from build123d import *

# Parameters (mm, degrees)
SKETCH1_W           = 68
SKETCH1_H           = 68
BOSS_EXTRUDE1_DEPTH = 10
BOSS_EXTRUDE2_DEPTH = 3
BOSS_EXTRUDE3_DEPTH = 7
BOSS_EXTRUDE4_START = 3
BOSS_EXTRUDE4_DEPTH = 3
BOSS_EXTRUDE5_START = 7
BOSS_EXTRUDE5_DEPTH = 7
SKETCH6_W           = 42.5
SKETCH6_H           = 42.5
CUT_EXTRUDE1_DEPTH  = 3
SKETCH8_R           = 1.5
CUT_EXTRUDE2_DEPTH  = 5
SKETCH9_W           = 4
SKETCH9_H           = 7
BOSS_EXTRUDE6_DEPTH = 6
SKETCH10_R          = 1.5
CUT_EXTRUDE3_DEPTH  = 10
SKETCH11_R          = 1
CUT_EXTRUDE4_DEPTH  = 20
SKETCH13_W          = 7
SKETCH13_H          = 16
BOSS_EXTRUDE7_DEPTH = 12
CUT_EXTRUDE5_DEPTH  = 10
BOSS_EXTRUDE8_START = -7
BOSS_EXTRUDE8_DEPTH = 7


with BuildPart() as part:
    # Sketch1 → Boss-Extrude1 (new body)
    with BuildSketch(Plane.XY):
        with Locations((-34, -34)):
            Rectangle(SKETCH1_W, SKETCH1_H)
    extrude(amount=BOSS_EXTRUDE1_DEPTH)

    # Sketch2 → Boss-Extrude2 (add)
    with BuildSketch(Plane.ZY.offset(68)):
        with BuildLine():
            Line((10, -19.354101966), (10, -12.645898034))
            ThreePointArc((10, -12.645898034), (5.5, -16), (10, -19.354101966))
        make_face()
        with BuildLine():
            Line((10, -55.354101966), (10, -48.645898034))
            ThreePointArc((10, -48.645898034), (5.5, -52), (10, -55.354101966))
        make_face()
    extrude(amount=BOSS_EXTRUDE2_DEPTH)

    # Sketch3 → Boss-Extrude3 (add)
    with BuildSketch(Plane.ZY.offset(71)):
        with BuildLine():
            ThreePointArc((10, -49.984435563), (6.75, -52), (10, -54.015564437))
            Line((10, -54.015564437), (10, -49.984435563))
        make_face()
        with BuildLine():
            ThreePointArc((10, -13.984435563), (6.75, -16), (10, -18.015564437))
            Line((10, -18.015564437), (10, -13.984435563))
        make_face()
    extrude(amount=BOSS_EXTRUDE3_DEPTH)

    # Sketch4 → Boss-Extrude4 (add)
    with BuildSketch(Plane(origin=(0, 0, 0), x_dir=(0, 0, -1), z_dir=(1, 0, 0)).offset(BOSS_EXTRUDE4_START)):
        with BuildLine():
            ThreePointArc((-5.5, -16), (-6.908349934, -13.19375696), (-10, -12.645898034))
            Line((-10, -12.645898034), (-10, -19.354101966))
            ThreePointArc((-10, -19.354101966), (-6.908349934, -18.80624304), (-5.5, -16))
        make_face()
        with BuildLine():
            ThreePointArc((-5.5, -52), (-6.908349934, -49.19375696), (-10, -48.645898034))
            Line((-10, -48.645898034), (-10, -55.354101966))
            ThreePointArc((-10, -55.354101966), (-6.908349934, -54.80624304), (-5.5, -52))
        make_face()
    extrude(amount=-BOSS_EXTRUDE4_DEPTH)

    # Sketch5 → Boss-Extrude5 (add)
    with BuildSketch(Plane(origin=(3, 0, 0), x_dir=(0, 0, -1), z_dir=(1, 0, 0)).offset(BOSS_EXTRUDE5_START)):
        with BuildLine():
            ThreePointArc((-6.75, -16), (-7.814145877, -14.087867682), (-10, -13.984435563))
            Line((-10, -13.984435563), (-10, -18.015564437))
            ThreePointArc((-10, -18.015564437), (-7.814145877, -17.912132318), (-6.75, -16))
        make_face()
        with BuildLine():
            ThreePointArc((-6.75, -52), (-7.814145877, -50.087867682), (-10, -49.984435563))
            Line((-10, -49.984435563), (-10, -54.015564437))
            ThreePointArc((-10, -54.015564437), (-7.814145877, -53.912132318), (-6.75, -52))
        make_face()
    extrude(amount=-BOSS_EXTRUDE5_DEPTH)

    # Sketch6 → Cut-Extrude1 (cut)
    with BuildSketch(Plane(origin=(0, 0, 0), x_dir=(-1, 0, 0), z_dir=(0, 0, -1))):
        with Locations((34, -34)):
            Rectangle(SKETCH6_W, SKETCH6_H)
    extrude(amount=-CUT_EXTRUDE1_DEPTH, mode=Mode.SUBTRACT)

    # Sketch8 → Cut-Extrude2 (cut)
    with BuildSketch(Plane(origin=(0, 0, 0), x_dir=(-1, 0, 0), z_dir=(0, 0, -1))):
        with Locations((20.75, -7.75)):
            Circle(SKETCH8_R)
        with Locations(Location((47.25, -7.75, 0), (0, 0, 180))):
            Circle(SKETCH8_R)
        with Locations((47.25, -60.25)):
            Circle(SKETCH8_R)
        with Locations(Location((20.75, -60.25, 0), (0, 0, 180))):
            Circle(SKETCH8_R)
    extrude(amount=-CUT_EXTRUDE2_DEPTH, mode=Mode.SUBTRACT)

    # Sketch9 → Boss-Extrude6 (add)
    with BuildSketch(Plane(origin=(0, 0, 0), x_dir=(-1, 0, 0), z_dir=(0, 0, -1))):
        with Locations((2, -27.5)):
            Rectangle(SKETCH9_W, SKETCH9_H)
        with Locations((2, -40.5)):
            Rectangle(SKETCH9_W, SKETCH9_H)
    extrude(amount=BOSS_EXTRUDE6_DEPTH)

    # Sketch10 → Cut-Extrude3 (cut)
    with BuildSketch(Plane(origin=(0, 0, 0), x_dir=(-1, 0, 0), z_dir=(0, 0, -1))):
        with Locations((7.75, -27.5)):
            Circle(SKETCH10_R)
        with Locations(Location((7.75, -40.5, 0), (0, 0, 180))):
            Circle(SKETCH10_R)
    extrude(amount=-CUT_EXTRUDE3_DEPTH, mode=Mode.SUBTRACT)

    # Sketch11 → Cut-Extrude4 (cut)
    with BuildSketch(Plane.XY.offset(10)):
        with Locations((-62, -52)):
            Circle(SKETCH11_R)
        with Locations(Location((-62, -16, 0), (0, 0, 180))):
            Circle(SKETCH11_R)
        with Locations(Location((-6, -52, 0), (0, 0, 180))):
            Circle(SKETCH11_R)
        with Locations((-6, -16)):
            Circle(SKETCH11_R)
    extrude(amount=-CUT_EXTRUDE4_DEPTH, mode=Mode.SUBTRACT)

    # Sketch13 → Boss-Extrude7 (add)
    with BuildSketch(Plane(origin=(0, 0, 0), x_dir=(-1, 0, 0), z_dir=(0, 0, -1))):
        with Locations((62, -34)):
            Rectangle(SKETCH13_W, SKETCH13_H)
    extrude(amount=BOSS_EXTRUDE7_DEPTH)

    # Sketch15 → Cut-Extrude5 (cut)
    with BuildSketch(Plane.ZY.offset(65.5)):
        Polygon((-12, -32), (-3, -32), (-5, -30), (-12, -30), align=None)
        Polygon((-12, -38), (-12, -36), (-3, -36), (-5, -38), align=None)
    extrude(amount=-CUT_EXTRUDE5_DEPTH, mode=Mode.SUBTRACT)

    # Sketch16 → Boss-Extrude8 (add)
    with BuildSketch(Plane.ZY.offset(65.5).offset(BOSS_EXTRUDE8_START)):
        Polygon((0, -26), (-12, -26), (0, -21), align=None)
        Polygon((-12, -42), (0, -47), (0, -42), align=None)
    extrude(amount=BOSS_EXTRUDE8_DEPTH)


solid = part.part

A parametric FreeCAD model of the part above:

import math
import FreeCAD as App
import Part
import Sketcher
from FreeCAD import Vector
Q = App.Units.Quantity

doc = App.newDocument("Part")
body = doc.addObject("PartDesign::Body", "Body")

# Sketch on XY plane
sketch1 = body.newObject("Sketcher::SketchObject", "Sketch")
sketch1.AttachmentSupport = (doc.getObject("XY_Plane"), [""])
sketch1.MapMode = "FlatFace"
sketch1.addGeometry([
    Part.LineSegment(Vector(-68, 0, 0), Vector(-68, -68, 0)),
    Part.LineSegment(Vector(-68, -68, 0), Vector(0, -68, 0)),
    Part.LineSegment(Vector(0, -68, 0), Vector(0, 0, 0)),
    Part.LineSegment(Vector(0, 0, 0), Vector(-68, 0, 0)),
], False)
sketch1.addConstraint([
    Sketcher.Constraint("Coincident", 0, 2, 1, 1),
    Sketcher.Constraint("Coincident", 1, 2, 2, 1),
    Sketcher.Constraint("Coincident", 2, 2, 3, 1),
    Sketcher.Constraint("Coincident", 3, 2, 0, 1),
    Sketcher.Constraint("Vertical", 0),
    Sketcher.Constraint("Horizontal", 1),
    Sketcher.Constraint("Vertical", 2),
    Sketcher.Constraint("Horizontal", 3),
    Sketcher.Constraint("Coincident", 2, 2, -1, 1),
    Sketcher.Constraint("Equal", 3, 0),
    Sketcher.Constraint("DistanceX", 1, 1, 1, 2, Q("68 mm")),
])
pad1 = body.newObject("PartDesign::Pad", "Pad")
pad1.Profile = sketch1
pad1.Length = 10

# Sketch on YZ plane
sketch2 = body.newObject("Sketcher::SketchObject", "Sketch001")
sketch2.AttachmentSupport = (doc.getObject("YZ_Plane"), [""])
sketch2.MapMode = "FlatFace"
sketch2.AttachmentOffset = App.Placement(Vector(0, 0, -68), App.Rotation())
sketch2.addGeometry([
    Part.LineSegment(Vector(-19.4, 10, 0), Vector(-12.6, 10, 0)),
    Part.ArcOfCircle(Part.Circle(Vector(-16, 9, 0), Vector(0, 0, 1), 3.5), math.radians(163), math.radians(377)),
    Part.LineSegment(Vector(-55.4, 10, 0), Vector(-48.6, 10, 0)),
    Part.ArcOfCircle(Part.Circle(Vector(-52, 9, 0), Vector(0, 0, 1), 3.5), math.radians(163), math.radians(377)),
], False)
sketch2.addConstraint([
    Sketcher.Constraint("Coincident", 0, 1, 1, 1),
    Sketcher.Constraint("Coincident", 1, 2, 0, 2),
    Sketcher.Constraint("Coincident", 2, 1, 3, 1),
    Sketcher.Constraint("Coincident", 3, 2, 2, 2),
    Sketcher.Constraint("Horizontal", 0),
    Sketcher.Constraint("Horizontal", 2),
    Sketcher.Constraint("Equal", 1, 3),
    Sketcher.Constraint("Horizontal", 1, 3, 3, 3),
    Sketcher.Constraint("Horizontal", 1, 2, 2, 1),
    Sketcher.Constraint("Radius", 1, Q("3.5 mm")),
    Sketcher.Constraint("DistanceX", 1, 3, -1, 1, Q("16 mm")),
    Sketcher.Constraint("DistanceY", -1, 1, 1, 3, Q("9 mm")),
    Sketcher.Constraint("DistanceX", 3, 3, -1, 1, Q("52 mm")),
    Sketcher.Constraint("DistanceY", -1, 1, 0, 1, Q("10 mm")),
])
pad2 = body.newObject("PartDesign::Pad", "Pad001")
pad2.Profile = sketch2
pad2.Length = 3
pad2.Reversed = True

# Sketch on YZ plane
sketch3 = body.newObject("Sketcher::SketchObject", "Sketch002")
sketch3.AttachmentSupport = (doc.getObject("YZ_Plane"), [""])
sketch3.MapMode = "FlatFace"
sketch3.AttachmentOffset = App.Placement(Vector(0, 0, -71), App.Rotation())
sketch3.addGeometry([
    Part.ArcOfCircle(Part.Circle(Vector(-52, 9, 0), Vector(0, 0, 1), 2.2), math.radians(154), math.radians(386)),
    Part.LineSegment(Vector(-54, 10, 0), Vector(-50, 10, 0)),
    Part.ArcOfCircle(Part.Circle(Vector(-16, 9, 0), Vector(0, 0, 1), 2.2), math.radians(154), math.radians(386)),
    Part.LineSegment(Vector(-18, 10, 0), Vector(-14, 10, 0)),
], False)
sketch3.addConstraint([
    Sketcher.Constraint("Coincident", 0, 1, 1, 1),
    Sketcher.Constraint("Coincident", 1, 2, 0, 2),
    Sketcher.Constraint("Coincident", 2, 1, 3, 1),
    Sketcher.Constraint("Coincident", 3, 2, 2, 2),
    Sketcher.Constraint("Horizontal", 1),
    Sketcher.Constraint("Horizontal", 3),
    Sketcher.Constraint("Equal", 0, 2),
    Sketcher.Constraint("Horizontal", 0, 3, 2, 3),
    Sketcher.Constraint("Horizontal", 1, 2, 2, 1),
    Sketcher.Constraint("Radius", 0, Q("2.25 mm")),
    Sketcher.Constraint("DistanceX", 0, 3, -1, 1, Q("52 mm")),
    Sketcher.Constraint("DistanceY", -1, 1, 0, 3, Q("9 mm")),
    Sketcher.Constraint("DistanceX", 2, 3, -1, 1, Q("16 mm")),
    Sketcher.Constraint("DistanceY", -1, 1, 0, 1, Q("10 mm")),
])
pad3 = body.newObject("PartDesign::Pad", "Pad002")
pad3.Profile = sketch3
pad3.Length = 7
pad3.Reversed = True

# Sketch on YZ plane
sketch4 = body.newObject("Sketcher::SketchObject", "Sketch003")
sketch4.AttachmentSupport = (doc.getObject("YZ_Plane"), [""])
sketch4.MapMode = "FlatFace"
sketch4.AttachmentOffset = App.Placement(Vector(0, 0, 3), App.Rotation())
sketch4.addGeometry([
    Part.ArcOfCircle(Part.Circle(Vector(-16, 9, 0), Vector(0, 0, 1), 3.5), math.radians(-90), math.radians(17)),  # 0
    Part.LineSegment(Vector(-12.6, 10, 0), Vector(-19.4, 10, 0)),  # 1
    Part.ArcOfCircle(Part.Circle(Vector(-16, 9, 0), Vector(0, 0, 1), 3.5), math.radians(163), math.radians(270)),  # 2
    Part.ArcOfCircle(Part.Circle(Vector(-52, 9, 0), Vector(0, 0, 1), 3.5), math.radians(-90), math.radians(17)),  # 3
    Part.LineSegment(Vector(-48.6, 10, 0), Vector(-55.4, 10, 0)),  # 4
    Part.ArcOfCircle(Part.Circle(Vector(-52, 9, 0), Vector(0, 0, 1), 3.5), math.radians(163), math.radians(270)),  # 5
], False)
sketch4.addConstraint([
    Sketcher.Constraint("Coincident", 0, 2, 1, 1),
    Sketcher.Constraint("Coincident", 1, 2, 2, 1),
    Sketcher.Constraint("Tangent", 2, 2, 0, 1),
    Sketcher.Constraint("Coincident", 3, 2, 4, 1),
    Sketcher.Constraint("Coincident", 4, 2, 5, 1),
    Sketcher.Constraint("Tangent", 5, 2, 3, 1),
    Sketcher.Constraint("Horizontal", 1),
    Sketcher.Constraint("Horizontal", 4),
    Sketcher.Constraint("Equal", 0, 2),
    Sketcher.Constraint("Equal", 2, 3),
    Sketcher.Constraint("Equal", 3, 5),
    Sketcher.Constraint("Horizontal", 2, 3, 3, 3),
    Sketcher.Constraint("Horizontal", 1, 2, 3, 2),
    Sketcher.Constraint("Vertical", 0, 3, 2, 2),
    Sketcher.Constraint("Vertical", 3, 3, 5, 2),
    Sketcher.Constraint("Radius", 0, Q("3.5 mm")),
    Sketcher.Constraint("DistanceX", 0, 3, -1, 1, Q("16 mm")),
    Sketcher.Constraint("DistanceY", -1, 1, 0, 3, Q("9 mm")),
    Sketcher.Constraint("DistanceX", 3, 3, -1, 1, Q("52 mm")),
    Sketcher.Constraint("DistanceY", -1, 1, 0, 2, Q("10 mm")),
])
pad4 = body.newObject("PartDesign::Pad", "Pad003")
pad4.Profile = sketch4
pad4.Length = 3
pad4.Reversed = True

# Sketch on YZ plane
sketch5 = body.newObject("Sketcher::SketchObject", "Sketch004")
sketch5.AttachmentSupport = (doc.getObject("YZ_Plane"), [""])
sketch5.MapMode = "FlatFace"
sketch5.AttachmentOffset = App.Placement(Vector(0, 0, 10), App.Rotation())
sketch5.addGeometry([
    Part.ArcOfCircle(Part.Circle(Vector(-16, 9, 0), Vector(0, 0, 1), 2.2), math.radians(-90), math.radians(26)),  # 0
    Part.LineSegment(Vector(-14, 10, 0), Vector(-18, 10, 0)),  # 1
    Part.ArcOfCircle(Part.Circle(Vector(-16, 9, 0), Vector(0, 0, 1), 2.2), math.radians(154), math.radians(270)),  # 2
    Part.ArcOfCircle(Part.Circle(Vector(-52, 9, 0), Vector(0, 0, 1), 2.2), math.radians(-90), math.radians(26)),  # 3
    Part.LineSegment(Vector(-50, 10, 0), Vector(-54, 10, 0)),  # 4
    Part.ArcOfCircle(Part.Circle(Vector(-52, 9, 0), Vector(0, 0, 1), 2.2), math.radians(154), math.radians(270)),  # 5
], False)
sketch5.addConstraint([
    Sketcher.Constraint("Coincident", 0, 2, 1, 1),
    Sketcher.Constraint("Coincident", 1, 2, 2, 1),
    Sketcher.Constraint("Tangent", 2, 2, 0, 1),
    Sketcher.Constraint("Coincident", 3, 2, 4, 1),
    Sketcher.Constraint("Coincident", 4, 2, 5, 1),
    Sketcher.Constraint("Tangent", 5, 2, 3, 1),
    Sketcher.Constraint("Horizontal", 1),
    Sketcher.Constraint("Horizontal", 4),
    Sketcher.Constraint("Equal", 0, 2),
    Sketcher.Constraint("Equal", 2, 3),
    Sketcher.Constraint("Equal", 3, 5),
    Sketcher.Constraint("Horizontal", 2, 3, 3, 3),
    Sketcher.Constraint("Horizontal", 1, 2, 3, 2),
    Sketcher.Constraint("Vertical", 0, 3, 2, 2),
    Sketcher.Constraint("Vertical", 3, 3, 5, 2),
    Sketcher.Constraint("Radius", 0, Q("2.25 mm")),
    Sketcher.Constraint("DistanceX", 0, 3, -1, 1, Q("16 mm")),
    Sketcher.Constraint("DistanceY", -1, 1, 0, 3, Q("9 mm")),
    Sketcher.Constraint("DistanceX", 3, 3, -1, 1, Q("52 mm")),
    Sketcher.Constraint("DistanceY", -1, 1, 0, 2, Q("10 mm")),
])
pad5 = body.newObject("PartDesign::Pad", "Pad004")
pad5.Profile = sketch5
pad5.Length = 7
pad5.Reversed = True

# Sketch on XY plane
sketch6 = body.newObject("Sketcher::SketchObject", "Sketch005")
sketch6.AttachmentSupport = (doc.getObject("XY_Plane"), [""])
sketch6.MapMode = "FlatFace"
sketch6.addGeometry([
    Part.LineSegment(Vector(-13, -13, 0), Vector(-13, -55, 0)),
    Part.LineSegment(Vector(-13, -55, 0), Vector(-55, -55, 0)),
    Part.LineSegment(Vector(-55, -55, 0), Vector(-55, -13, 0)),
    Part.LineSegment(Vector(-55, -13, 0), Vector(-13, -13, 0)),
], False)
sketch6.addConstraint([
    Sketcher.Constraint("Coincident", 0, 2, 1, 1),
    Sketcher.Constraint("Coincident", 1, 2, 2, 1),
    Sketcher.Constraint("Coincident", 2, 2, 3, 1),
    Sketcher.Constraint("Coincident", 3, 2, 0, 1),
    Sketcher.Constraint("Vertical", 0),
    Sketcher.Constraint("Horizontal", 1),
    Sketcher.Constraint("Vertical", 2),
    Sketcher.Constraint("Horizontal", 3),
    Sketcher.Constraint("Equal", 3, 0),
    Sketcher.Constraint("DistanceX", 1, 2, 1, 1, Q("42.5 mm")),
    Sketcher.Constraint("DistanceX", 0, 2, -1, 1, Q("12.75 mm")),
    Sketcher.Constraint("DistanceY", 0, 2, -1, 1, Q("55.25 mm")),
])
pocket1 = body.newObject("PartDesign::Pocket", "Pocket")
pocket1.Profile = sketch6
pocket1.Length = 3
pocket1.Reversed = True

# Sketch on XY plane
sketch7 = body.newObject("Sketcher::SketchObject", "Sketch006")
sketch7.AttachmentSupport = (doc.getObject("XY_Plane"), [""])
sketch7.MapMode = "FlatFace"
sketch7.addGeometry([
    Part.Circle(Vector(-20.8, -7.8, 0), Vector(0, 0, 1), 1.5),
    Part.Circle(Vector(-47.2, -7.8, 0), Vector(0, 0, 1), 1.5),
    Part.Circle(Vector(-47.2, -60.2, 0), Vector(0, 0, 1), 1.5),
    Part.Circle(Vector(-20.8, -60.2, 0), Vector(0, 0, 1), 1.5),
], False)
sketch7.addConstraint([
    Sketcher.Constraint("Equal", 0, 1),
    Sketcher.Constraint("Equal", 1, 2),
    Sketcher.Constraint("Equal", 2, 3),
    Sketcher.Constraint("Horizontal", 0, 3, 1, 3),
    Sketcher.Constraint("Horizontal", 2, 3, 3, 3),
    Sketcher.Constraint("Vertical", 1, 3, 2, 3),
    Sketcher.Constraint("Vertical", 0, 3, 3, 3),
    Sketcher.Constraint("Diameter", 0, Q("3 mm")),
    Sketcher.Constraint("DistanceX", 1, 3, 0, 3, Q("26.5 mm")),
    Sketcher.Constraint("DistanceY", 2, 3, 1, 3, Q("52.5 mm")),
    Sketcher.Constraint("DistanceX", 0, 3, -1, 1, Q("20.75 mm")),
    Sketcher.Constraint("DistanceY", 0, 3, -1, 1, Q("7.75 mm")),
])
pocket2 = body.newObject("PartDesign::Pocket", "Pocket001")
pocket2.Profile = sketch7
pocket2.Length = 5
pocket2.Reversed = True

# Sketch on XY plane
sketch8 = body.newObject("Sketcher::SketchObject", "Sketch007")
sketch8.AttachmentSupport = (doc.getObject("XY_Plane"), [""])
sketch8.MapMode = "FlatFace"
sketch8.addGeometry([
    Part.LineSegment(Vector(0, -24, 0), Vector(0, -31, 0)),  # 0
    Part.LineSegment(Vector(0, -31, 0), Vector(-4, -31, 0)),  # 1
    Part.LineSegment(Vector(-4, -31, 0), Vector(-4, -24, 0)),  # 2
    Part.LineSegment(Vector(-4, -24, 0), Vector(0, -24, 0)),  # 3
    Part.LineSegment(Vector(0, -37, 0), Vector(0, -44, 0)),  # 4
    Part.LineSegment(Vector(0, -44, 0), Vector(-4, -44, 0)),  # 5
    Part.LineSegment(Vector(-4, -44, 0), Vector(-4, -37, 0)),  # 6
    Part.LineSegment(Vector(-4, -37, 0), Vector(0, -37, 0)),  # 7
], False)
sketch8.addConstraint([
    Sketcher.Constraint("Coincident", 0, 2, 1, 1),
    Sketcher.Constraint("Coincident", 1, 2, 2, 1),
    Sketcher.Constraint("Coincident", 2, 2, 3, 1),
    Sketcher.Constraint("Coincident", 3, 2, 0, 1),
    Sketcher.Constraint("Coincident", 4, 2, 5, 1),
    Sketcher.Constraint("Coincident", 5, 2, 6, 1),
    Sketcher.Constraint("Coincident", 6, 2, 7, 1),
    Sketcher.Constraint("Coincident", 7, 2, 4, 1),
    Sketcher.Constraint("Vertical", 0),
    Sketcher.Constraint("Horizontal", 1),
    Sketcher.Constraint("Vertical", 2),
    Sketcher.Constraint("Horizontal", 3),
    Sketcher.Constraint("Vertical", 4),
    Sketcher.Constraint("Horizontal", 5),
    Sketcher.Constraint("Vertical", 6),
    Sketcher.Constraint("Horizontal", 7),
    Sketcher.Constraint("PointOnObject", 0, 2, -2),
    Sketcher.Constraint("PointOnObject", 4, 2, -2),
    Sketcher.Constraint("Vertical", 2, 2, 5, 2),
    Sketcher.Constraint("Equal", 2, 4),
    Sketcher.Constraint("DistanceX", 1, 2, 1, 1, Q("4 mm")),
    Sketcher.Constraint("DistanceY", 0, 2, 0, 1, Q("7 mm")),
    Sketcher.Constraint("DistanceY", 0, 2, -1, 1, Q("31 mm")),
    Sketcher.Constraint("DistanceY", 4, 2, -1, 1, Q("44 mm")),
])
pad6 = body.newObject("PartDesign::Pad", "Pad005")
pad6.Profile = sketch8
pad6.Length = 6
pad6.Reversed = True

# Sketch on XY plane
sketch9 = body.newObject("Sketcher::SketchObject", "Sketch008")
sketch9.AttachmentSupport = (doc.getObject("XY_Plane"), [""])
sketch9.MapMode = "FlatFace"
sketch9.addGeometry([
    Part.Circle(Vector(-7.8, -27.5, 0), Vector(0, 0, 1), 1.5),
    Part.Circle(Vector(-7.8, -40.5, 0), Vector(0, 0, 1), 1.5),
], False)
sketch9.addConstraint([
    Sketcher.Constraint("Equal", 0, 1),
    Sketcher.Constraint("Vertical", 0, 3, 1, 3),
    Sketcher.Constraint("Diameter", 0, Q("3 mm")),
    Sketcher.Constraint("DistanceY", 1, 3, 0, 3, Q("13 mm")),
    Sketcher.Constraint("DistanceY", 0, 3, -1, 1, Q("27.5 mm")),
    Sketcher.Constraint("DistanceX", 0, 3, -1, 1, Q("7.75 mm")),
])
pocket3 = body.newObject("PartDesign::Pocket", "Pocket002")
pocket3.Profile = sketch9
pocket3.Length = 10
pocket3.Reversed = True

# Sketch on XY plane
sketch10 = body.newObject("Sketcher::SketchObject", "Sketch009")
sketch10.AttachmentSupport = (doc.getObject("XY_Plane"), [""])
sketch10.MapMode = "FlatFace"
sketch10.AttachmentOffset = App.Placement(Vector(0, 0, 10), App.Rotation())
sketch10.addGeometry([
    Part.Circle(Vector(-62, -52, 0), Vector(0, 0, 1), 1),
    Part.Circle(Vector(-62, -16, 0), Vector(0, 0, 1), 1),
    Part.Circle(Vector(-6, -52, 0), Vector(0, 0, 1), 1),
    Part.Circle(Vector(-6, -16, 0), Vector(0, 0, 1), 1),
], False)
sketch10.addConstraint([
    Sketcher.Constraint("Equal", 0, 1),
    Sketcher.Constraint("Equal", 1, 2),
    Sketcher.Constraint("Equal", 2, 3),
    Sketcher.Constraint("Horizontal", 0, 3, 2, 3),
    Sketcher.Constraint("Horizontal", 1, 3, 3, 3),
    Sketcher.Constraint("Vertical", 0, 3, 1, 3),
    Sketcher.Constraint("Vertical", 2, 3, 3, 3),
    Sketcher.Constraint("Diameter", 0, Q("2 mm")),
    Sketcher.Constraint("DistanceX", 0, 3, -1, 1, Q("62 mm")),
    Sketcher.Constraint("DistanceY", 0, 3, -1, 1, Q("52 mm")),
    Sketcher.Constraint("DistanceY", 1, 3, -1, 1, Q("16 mm")),
    Sketcher.Constraint("DistanceX", 2, 3, -1, 1, Q("6 mm")),
])
pocket4 = body.newObject("PartDesign::Pocket", "Pocket003")
pocket4.Profile = sketch10
pocket4.Length = 20

# Sketch on XY plane
sketch11 = body.newObject("Sketcher::SketchObject", "Sketch010")
sketch11.AttachmentSupport = (doc.getObject("XY_Plane"), [""])
sketch11.MapMode = "FlatFace"
sketch11.addGeometry([
    Part.LineSegment(Vector(-58, -26, 0), Vector(-58, -42, 0)),
    Part.LineSegment(Vector(-58, -42, 0), Vector(-66, -42, 0)),
    Part.LineSegment(Vector(-66, -42, 0), Vector(-66, -26, 0)),
    Part.LineSegment(Vector(-66, -26, 0), Vector(-58, -26, 0)),
], False)
sketch11.addConstraint([
    Sketcher.Constraint("Coincident", 0, 2, 1, 1),
    Sketcher.Constraint("Coincident", 1, 2, 2, 1),
    Sketcher.Constraint("Coincident", 2, 2, 3, 1),
    Sketcher.Constraint("Coincident", 3, 2, 0, 1),
    Sketcher.Constraint("Vertical", 0),
    Sketcher.Constraint("Horizontal", 1),
    Sketcher.Constraint("Vertical", 2),
    Sketcher.Constraint("Horizontal", 3),
    Sketcher.Constraint("DistanceX", 1, 2, 1, 1, Q("7 mm")),
    Sketcher.Constraint("DistanceY", 0, 2, 0, 1, Q("16 mm")),
    Sketcher.Constraint("DistanceY", 0, 2, -1, 1, Q("42 mm")),
    Sketcher.Constraint("DistanceX", 0, 2, -1, 1, Q("58.5 mm")),
])
pad7 = body.newObject("PartDesign::Pad", "Pad006")
pad7.Profile = sketch11
pad7.Length = 12
pad7.Reversed = True

# Sketch on YZ plane
sketch12 = body.newObject("Sketcher::SketchObject", "Sketch011")
sketch12.AttachmentSupport = (doc.getObject("YZ_Plane"), [""])
sketch12.MapMode = "FlatFace"
sketch12.AttachmentOffset = App.Placement(Vector(0, 0, -65.5), App.Rotation())
sketch12.addGeometry([
    Part.LineSegment(Vector(-32, -12, 0), Vector(-32, -3, 0)),  # 0
    Part.LineSegment(Vector(-32, -3, 0), Vector(-30, -5, 0)),  # 1
    Part.LineSegment(Vector(-30, -5, 0), Vector(-30, -12, 0)),  # 2
    Part.LineSegment(Vector(-30, -12, 0), Vector(-32, -12, 0)),  # 3
    Part.LineSegment(Vector(-36, -12, 0), Vector(-38, -12, 0)),  # 4
    Part.LineSegment(Vector(-38, -12, 0), Vector(-38, -5, 0)),  # 5
    Part.LineSegment(Vector(-38, -5, 0), Vector(-36, -3, 0)),  # 6
    Part.LineSegment(Vector(-36, -3, 0), Vector(-36, -12, 0)),  # 7
], False)
sketch12.addConstraint([
    Sketcher.Constraint("Coincident", 0, 2, 1, 1),
    Sketcher.Constraint("Coincident", 1, 2, 2, 1),
    Sketcher.Constraint("Coincident", 2, 2, 3, 1),
    Sketcher.Constraint("Coincident", 3, 2, 0, 1),
    Sketcher.Constraint("Coincident", 4, 2, 5, 1),
    Sketcher.Constraint("Coincident", 5, 2, 6, 1),
    Sketcher.Constraint("Coincident", 6, 2, 7, 1),
    Sketcher.Constraint("Coincident", 7, 2, 4, 1),
    Sketcher.Constraint("Vertical", 0),
    Sketcher.Constraint("Vertical", 2),
    Sketcher.Constraint("Horizontal", 3),
    Sketcher.Constraint("Horizontal", 4),
    Sketcher.Constraint("Vertical", 5),
    Sketcher.Constraint("Vertical", 7),
    Sketcher.Constraint("Perpendicular", 1, 6),
    Sketcher.Constraint("Horizontal", 3, 2, 4, 2),
    Sketcher.Constraint("Horizontal", 1, 2, 5, 2),
    Sketcher.Constraint("Horizontal", 0, 2, 6, 2),
    Sketcher.Constraint("Equal", 3, 4),
    Sketcher.Constraint("DistanceX", 3, 2, 3, 1, Q("2 mm")),
    Sketcher.Constraint("DistanceY", 0, 1, 0, 2, Q("9 mm")),
    Sketcher.Constraint("DistanceX", 0, 2, -1, 1, Q("32 mm")),
    Sketcher.Constraint("DistanceY", 0, 2, -1, 1, Q("3 mm")),
    Sketcher.Constraint("DistanceX", 4, 2, -1, 1, Q("38 mm")),
])
pocket5 = body.newObject("PartDesign::Pocket", "Pocket004")
pocket5.Profile = sketch12
pocket5.Length = 10
pocket5.Reversed = True

# Sketch on YZ plane
sketch13 = body.newObject("Sketcher::SketchObject", "Sketch012")
sketch13.AttachmentSupport = (doc.getObject("YZ_Plane"), [""])
sketch13.MapMode = "FlatFace"
sketch13.AttachmentOffset = App.Placement(Vector(0, 0, -58.5), App.Rotation())
sketch13.addGeometry([
    Part.LineSegment(Vector(-26, -12, 0), Vector(-26, 0, 0)),  # 0
    Part.LineSegment(Vector(-26, 0, 0), Vector(-21, 0, 0)),  # 1
    Part.LineSegment(Vector(-21, 0, 0), Vector(-26, -12, 0)),  # 2
    Part.LineSegment(Vector(-42, -12, 0), Vector(-47, 0, 0)),  # 3
    Part.LineSegment(Vector(-47, 0, 0), Vector(-42, 0, 0)),  # 4
    Part.LineSegment(Vector(-42, 0, 0), Vector(-42, -12, 0)),  # 5
], False)
sketch13.addConstraint([
    Sketcher.Constraint("Coincident", 0, 2, 1, 1),
    Sketcher.Constraint("Coincident", 1, 2, 2, 1),
    Sketcher.Constraint("Coincident", 2, 2, 0, 1),
    Sketcher.Constraint("Coincident", 3, 2, 4, 1),
    Sketcher.Constraint("Coincident", 4, 2, 5, 1),
    Sketcher.Constraint("Coincident", 5, 2, 3, 1),
    Sketcher.Constraint("Vertical", 0),
    Sketcher.Constraint("Horizontal", 1),
    Sketcher.Constraint("Horizontal", 4),
    Sketcher.Constraint("Vertical", 5),
    Sketcher.Constraint("PointOnObject", 0, 2, -1),
    Sketcher.Constraint("PointOnObject", 3, 2, -1),
    Sketcher.Constraint("Horizontal", 2, 2, 5, 2),
    Sketcher.Constraint("Equal", 1, 4),
    Sketcher.Constraint("DistanceX", 1, 1, 1, 2, Q("5 mm")),
    Sketcher.Constraint("DistanceY", 0, 1, 0, 2, Q("12 mm")),
    Sketcher.Constraint("DistanceX", 0, 2, -1, 1, Q("26 mm")),
    Sketcher.Constraint("DistanceX", 3, 2, -1, 1, Q("47 mm")),
])
pad8 = body.newObject("PartDesign::Pad", "Pad007")
pad8.Profile = sketch13
pad8.Length = 7
pad8.Reversed = True

doc.recompute()
